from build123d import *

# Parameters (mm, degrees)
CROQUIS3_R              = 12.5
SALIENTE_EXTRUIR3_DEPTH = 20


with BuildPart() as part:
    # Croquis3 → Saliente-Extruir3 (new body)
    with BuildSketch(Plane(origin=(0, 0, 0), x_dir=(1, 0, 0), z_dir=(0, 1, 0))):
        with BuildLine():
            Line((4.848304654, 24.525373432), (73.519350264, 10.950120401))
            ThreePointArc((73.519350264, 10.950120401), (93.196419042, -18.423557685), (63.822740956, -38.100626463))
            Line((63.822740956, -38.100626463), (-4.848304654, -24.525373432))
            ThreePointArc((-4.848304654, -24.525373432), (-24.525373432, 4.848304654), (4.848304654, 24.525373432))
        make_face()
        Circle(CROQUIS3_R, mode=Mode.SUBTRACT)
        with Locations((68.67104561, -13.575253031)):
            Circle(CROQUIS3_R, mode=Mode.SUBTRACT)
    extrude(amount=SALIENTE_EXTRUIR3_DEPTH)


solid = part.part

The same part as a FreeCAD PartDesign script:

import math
import FreeCAD as App
import Part
import Sketcher
from FreeCAD import Vector
Q = App.Units.Quantity

doc = App.newDocument("Part")
params = doc.addObject("Spreadsheet::Sheet", "Params")
for row, (alias, value) in enumerate([
    ("sketch1_diameter", "25 mm"),
    ("sketch1_radius", "25 mm"),
    ("sketch1_length", "70 mm"),
    ("pad1_length", "20 mm"),
], start=1):
    params.set(f"A{row}", alias)
    params.set(f"B{row}", "=" + value)
    params.setAlias(f"B{row}", alias)

body = doc.addObject("PartDesign::Body", "Body")

# Sketch on XZ plane
sketch1 = body.newObject("Sketcher::SketchObject", "Sketch")
sketch1.AttachmentSupport = (doc.getObject("XZ_Plane"), [""])
sketch1.MapMode = "FlatFace"
sketch1.addGeometry([
    Part.LineSegment(Vector(74, -11, 0), Vector(5, -25, 0)),  # 0
    Part.ArcOfCircle(Part.Circle(Vector(0, 0, 0), Vector(0, 0, 1), 25), math.radians(101), math.radians(281)),  # 1
    Part.LineSegment(Vector(-5, 25, 0), Vector(64, 38, 0)),  # 2
    Part.ArcOfCircle(Part.Circle(Vector(69, 14, 0), Vector(0, 0, 1), 25), math.radians(-79), math.radians(101)),  # 3
    Part.Circle(Vector(69, 14, 0), Vector(0, 0, 1), 12),  # 4
    Part.Circle(Vector(0, 0, 0), Vector(0, 0, 1), 12),  # 5
], False)
sketch1.addConstraint([
    Sketcher.Constraint("Tangent", 0, 2, 1, 2),
    Sketcher.Constraint("Tangent", 1, 1, 2, 1),
    Sketcher.Constraint("Tangent", 2, 2, 3, 2),
    Sketcher.Constraint("Tangent", 3, 1, 0, 1),
    Sketcher.Constraint("Coincident", 1, 3, -1, 1),
    Sketcher.Constraint("Coincident", 5, 3, -1, 1),
    Sketcher.Constraint("Coincident", 4, 3, 3, 3),
    Sketcher.Constraint("Equal", 1, 3),
    Sketcher.Constraint("Equal", 4, 5),
    Sketcher.Constraint("Diameter", 4, Q("25 mm")),
    Sketcher.Constraint("Radius", 1, Q("25 mm")),
    Sketcher.Constraint("Distance", 0, Q("70 mm")),
    Sketcher.Constraint("DistanceX", -1, 1, 2, 2, Q("63.822741 mm")),
])
sketch1.setExpression("Constraints[9]", "Params.sketch1_diameter")
sketch1.setExpression("Constraints[10]", "Params.sketch1_radius")
sketch1.setExpression("Constraints[11]", "Params.sketch1_length")
pad1 = body.newObject("PartDesign::Pad", "Pad")
pad1.Profile = sketch1
pad1.setExpression("Length", "Params.pad1_length")
pad1.Reversed = True

doc.recompute()
